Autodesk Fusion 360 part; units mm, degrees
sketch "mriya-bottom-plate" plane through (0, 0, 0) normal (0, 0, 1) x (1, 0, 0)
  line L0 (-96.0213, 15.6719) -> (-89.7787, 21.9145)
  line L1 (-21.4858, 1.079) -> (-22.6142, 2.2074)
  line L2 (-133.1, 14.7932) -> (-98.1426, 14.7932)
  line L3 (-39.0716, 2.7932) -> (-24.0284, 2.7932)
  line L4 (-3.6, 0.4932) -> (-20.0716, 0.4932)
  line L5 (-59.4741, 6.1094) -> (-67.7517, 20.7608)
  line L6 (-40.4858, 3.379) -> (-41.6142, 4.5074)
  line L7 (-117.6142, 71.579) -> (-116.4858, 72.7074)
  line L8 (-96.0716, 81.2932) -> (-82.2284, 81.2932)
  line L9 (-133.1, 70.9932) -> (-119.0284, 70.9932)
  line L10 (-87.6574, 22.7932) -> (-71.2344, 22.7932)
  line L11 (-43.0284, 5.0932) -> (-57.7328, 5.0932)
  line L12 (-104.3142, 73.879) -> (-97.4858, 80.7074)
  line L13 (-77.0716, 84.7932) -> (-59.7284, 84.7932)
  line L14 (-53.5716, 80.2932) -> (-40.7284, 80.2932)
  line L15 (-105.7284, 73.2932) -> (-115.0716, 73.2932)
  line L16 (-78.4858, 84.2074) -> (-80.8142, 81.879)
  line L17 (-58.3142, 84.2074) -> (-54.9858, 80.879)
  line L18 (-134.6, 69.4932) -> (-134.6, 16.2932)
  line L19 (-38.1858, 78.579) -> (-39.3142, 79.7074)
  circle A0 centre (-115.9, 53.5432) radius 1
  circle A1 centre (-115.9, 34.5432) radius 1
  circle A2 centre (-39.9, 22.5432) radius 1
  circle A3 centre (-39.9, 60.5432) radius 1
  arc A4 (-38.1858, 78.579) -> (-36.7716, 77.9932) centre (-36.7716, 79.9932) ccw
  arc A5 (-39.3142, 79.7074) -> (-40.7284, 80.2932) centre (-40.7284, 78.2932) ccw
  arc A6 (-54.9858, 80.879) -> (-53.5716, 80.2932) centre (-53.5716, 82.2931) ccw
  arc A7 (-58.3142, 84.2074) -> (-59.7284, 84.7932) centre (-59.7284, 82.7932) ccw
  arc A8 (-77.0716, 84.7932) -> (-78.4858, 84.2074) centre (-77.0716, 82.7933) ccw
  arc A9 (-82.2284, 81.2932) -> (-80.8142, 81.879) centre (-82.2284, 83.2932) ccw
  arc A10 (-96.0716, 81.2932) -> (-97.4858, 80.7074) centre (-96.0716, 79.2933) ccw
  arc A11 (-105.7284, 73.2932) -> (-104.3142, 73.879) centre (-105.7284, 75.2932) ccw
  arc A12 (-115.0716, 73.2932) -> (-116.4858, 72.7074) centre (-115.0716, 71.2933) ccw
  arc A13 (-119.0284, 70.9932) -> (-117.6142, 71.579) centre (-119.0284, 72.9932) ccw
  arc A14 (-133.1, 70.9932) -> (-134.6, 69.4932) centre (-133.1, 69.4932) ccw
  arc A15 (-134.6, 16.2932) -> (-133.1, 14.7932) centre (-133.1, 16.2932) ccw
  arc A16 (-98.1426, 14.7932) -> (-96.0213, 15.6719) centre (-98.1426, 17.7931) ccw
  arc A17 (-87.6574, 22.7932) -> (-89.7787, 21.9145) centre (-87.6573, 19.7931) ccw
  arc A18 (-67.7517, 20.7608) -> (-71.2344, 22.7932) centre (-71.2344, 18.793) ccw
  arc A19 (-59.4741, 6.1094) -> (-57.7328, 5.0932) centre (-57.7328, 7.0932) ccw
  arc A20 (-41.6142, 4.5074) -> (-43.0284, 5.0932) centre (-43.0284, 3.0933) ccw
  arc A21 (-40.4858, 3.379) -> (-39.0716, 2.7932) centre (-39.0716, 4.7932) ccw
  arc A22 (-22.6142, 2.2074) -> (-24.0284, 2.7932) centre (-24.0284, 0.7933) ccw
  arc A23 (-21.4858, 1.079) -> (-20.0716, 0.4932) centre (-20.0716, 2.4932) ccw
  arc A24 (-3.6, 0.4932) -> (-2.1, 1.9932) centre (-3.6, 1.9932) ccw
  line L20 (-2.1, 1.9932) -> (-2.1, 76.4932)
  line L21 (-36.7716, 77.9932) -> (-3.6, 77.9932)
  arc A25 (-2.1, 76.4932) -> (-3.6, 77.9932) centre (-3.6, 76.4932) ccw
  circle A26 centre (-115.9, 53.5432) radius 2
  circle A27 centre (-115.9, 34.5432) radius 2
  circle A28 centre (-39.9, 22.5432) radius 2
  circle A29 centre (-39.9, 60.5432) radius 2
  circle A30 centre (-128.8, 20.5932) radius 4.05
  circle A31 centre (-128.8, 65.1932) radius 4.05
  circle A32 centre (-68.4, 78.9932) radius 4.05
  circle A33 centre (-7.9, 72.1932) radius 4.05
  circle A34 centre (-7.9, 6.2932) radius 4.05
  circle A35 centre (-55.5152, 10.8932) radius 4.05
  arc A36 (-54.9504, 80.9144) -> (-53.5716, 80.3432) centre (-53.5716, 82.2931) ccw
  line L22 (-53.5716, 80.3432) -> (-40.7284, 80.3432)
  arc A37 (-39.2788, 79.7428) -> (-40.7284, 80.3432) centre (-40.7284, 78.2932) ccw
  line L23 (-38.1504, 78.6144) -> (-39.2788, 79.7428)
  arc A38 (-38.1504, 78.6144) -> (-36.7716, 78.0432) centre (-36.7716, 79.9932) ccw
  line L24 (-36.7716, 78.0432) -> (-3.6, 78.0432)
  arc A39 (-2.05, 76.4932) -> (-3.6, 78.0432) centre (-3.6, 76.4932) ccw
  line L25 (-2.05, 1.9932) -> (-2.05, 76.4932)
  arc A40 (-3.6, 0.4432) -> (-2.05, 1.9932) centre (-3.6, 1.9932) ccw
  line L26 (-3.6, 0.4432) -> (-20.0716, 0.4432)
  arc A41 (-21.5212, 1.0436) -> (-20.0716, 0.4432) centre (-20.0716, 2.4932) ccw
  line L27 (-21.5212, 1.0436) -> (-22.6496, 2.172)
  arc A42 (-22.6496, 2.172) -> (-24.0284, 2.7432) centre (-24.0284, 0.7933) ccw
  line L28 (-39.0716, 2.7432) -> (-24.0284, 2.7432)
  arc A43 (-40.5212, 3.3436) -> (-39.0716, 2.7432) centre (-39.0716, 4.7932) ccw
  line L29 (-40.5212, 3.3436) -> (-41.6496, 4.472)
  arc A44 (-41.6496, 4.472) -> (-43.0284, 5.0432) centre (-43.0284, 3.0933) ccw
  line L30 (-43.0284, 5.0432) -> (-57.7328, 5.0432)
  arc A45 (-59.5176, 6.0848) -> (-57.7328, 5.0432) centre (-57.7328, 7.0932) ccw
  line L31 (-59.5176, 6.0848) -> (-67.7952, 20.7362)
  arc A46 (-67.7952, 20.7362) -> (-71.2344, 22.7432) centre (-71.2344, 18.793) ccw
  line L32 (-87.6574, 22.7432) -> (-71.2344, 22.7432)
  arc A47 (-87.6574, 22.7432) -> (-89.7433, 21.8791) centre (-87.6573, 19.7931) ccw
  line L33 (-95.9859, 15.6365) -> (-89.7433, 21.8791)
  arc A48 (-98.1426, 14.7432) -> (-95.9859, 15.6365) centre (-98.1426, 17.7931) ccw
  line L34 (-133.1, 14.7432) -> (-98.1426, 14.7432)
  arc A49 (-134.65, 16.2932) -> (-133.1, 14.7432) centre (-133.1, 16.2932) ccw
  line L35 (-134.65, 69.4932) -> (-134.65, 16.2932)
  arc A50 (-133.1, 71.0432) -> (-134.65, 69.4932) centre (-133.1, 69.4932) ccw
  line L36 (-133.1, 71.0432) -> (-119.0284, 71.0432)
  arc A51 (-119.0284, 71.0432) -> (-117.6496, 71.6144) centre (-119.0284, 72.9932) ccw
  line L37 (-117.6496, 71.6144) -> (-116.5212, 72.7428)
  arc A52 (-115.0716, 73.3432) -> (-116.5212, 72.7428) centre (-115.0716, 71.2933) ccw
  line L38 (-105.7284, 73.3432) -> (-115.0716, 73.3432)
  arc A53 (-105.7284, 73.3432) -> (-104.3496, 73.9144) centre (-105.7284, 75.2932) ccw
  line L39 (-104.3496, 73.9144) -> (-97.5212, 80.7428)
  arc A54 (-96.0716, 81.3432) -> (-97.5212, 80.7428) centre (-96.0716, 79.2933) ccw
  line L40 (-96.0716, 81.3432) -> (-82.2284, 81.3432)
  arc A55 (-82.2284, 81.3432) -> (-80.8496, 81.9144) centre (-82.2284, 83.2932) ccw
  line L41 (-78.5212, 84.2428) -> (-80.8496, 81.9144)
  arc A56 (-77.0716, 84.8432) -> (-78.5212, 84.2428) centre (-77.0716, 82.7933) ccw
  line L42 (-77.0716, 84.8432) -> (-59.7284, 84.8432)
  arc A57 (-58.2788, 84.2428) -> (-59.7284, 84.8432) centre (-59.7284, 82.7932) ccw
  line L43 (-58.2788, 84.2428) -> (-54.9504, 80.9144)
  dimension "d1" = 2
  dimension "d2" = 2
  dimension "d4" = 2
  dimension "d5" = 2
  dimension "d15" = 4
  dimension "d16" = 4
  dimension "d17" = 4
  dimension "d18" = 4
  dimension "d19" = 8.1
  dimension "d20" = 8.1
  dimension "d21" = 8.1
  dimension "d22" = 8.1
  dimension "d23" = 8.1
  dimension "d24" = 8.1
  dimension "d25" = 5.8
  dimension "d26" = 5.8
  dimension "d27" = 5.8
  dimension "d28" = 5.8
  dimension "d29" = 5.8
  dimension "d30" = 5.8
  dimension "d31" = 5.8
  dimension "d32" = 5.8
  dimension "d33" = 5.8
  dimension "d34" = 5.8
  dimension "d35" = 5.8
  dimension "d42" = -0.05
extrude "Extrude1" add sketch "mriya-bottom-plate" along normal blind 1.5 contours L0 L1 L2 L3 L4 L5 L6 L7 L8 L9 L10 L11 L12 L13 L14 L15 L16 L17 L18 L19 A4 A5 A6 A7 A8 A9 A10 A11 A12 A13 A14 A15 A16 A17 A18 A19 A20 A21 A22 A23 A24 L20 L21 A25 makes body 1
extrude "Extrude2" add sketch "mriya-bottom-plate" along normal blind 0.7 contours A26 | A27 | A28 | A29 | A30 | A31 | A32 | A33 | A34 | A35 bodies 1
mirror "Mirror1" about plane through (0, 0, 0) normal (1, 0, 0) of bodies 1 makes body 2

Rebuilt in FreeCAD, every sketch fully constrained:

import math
import FreeCAD as App
import Part
import Sketcher
Q = App.Units.Quantity

doc = App.newDocument("Part")
body = doc.addObject("PartDesign::Body", "Body")
body.AllowCompound = True

# Sketch on XY plane
sketch1 = doc.addObject("Sketcher::SketchObject", "Sketch")
body.addObject(sketch1)
sketch1.AttachmentSupport = (doc.XY_Plane, [""])
sketch1.MapMode = "FlatFace"
sketch1.addGeometry(Part.ArcOfCircle(Part.Circle(App.Vector(-98.1, 17.8, 0), App.Vector(0, 0, 1), 3), math.radians(-90), math.radians(-45)), False)
sketch1.addGeometry(Part.LineSegment(App.Vector(-96, 15.7, 0), App.Vector(-89.8, 21.9, 0)), False)
sketch1.addGeometry(Part.ArcOfCircle(Part.Circle(App.Vector(-87.7, 19.8, 0), App.Vector(0, 0, 1), 3), math.radians(90), math.radians(135)), False)
sketch1.addGeometry(Part.LineSegment(App.Vector(-87.7, 22.8, 0), App.Vector(-71.2, 22.8, 0)), False)
sketch1.addGeometry(Part.ArcOfCircle(Part.Circle(App.Vector(-71.2, 18.8, 0), App.Vector(0, 0, 1), 4), math.radians(29), math.radians(90)), False)
sketch1.addGeometry(Part.LineSegment(App.Vector(-67.8, 20.8, 0), App.Vector(-59.5, 6.1, 0)), False)
sketch1.addGeometry(Part.ArcOfCircle(Part.Circle(App.Vector(-57.7, 7.1, 0), App.Vector(0, 0, 1), 2), math.radians(-151), math.radians(-90)), False)
sketch1.addGeometry(Part.LineSegment(App.Vector(-57.7, 5.1, 0), App.Vector(-43, 5.1, 0)), False)
sketch1.addGeometry(Part.ArcOfCircle(Part.Circle(App.Vector(-43, 3.1, 0), App.Vector(0, 0, 1), 2), math.radians(45), math.radians(90)), False)
sketch1.addGeometry(Part.LineSegment(App.Vector(-41.6, 4.5, 0), App.Vector(-40.5, 3.4, 0)), False)
sketch1.addGeometry(Part.ArcOfCircle(Part.Circle(App.Vector(-39.1, 4.8, 0), App.Vector(0, 0, 1), 2), math.radians(-135), math.radians(-90)), False)
sketch1.addGeometry(Part.LineSegment(App.Vector(-39.1, 2.8, 0), App.Vector(-24, 2.8, 0)), False)
sketch1.addGeometry(Part.ArcOfCircle(Part.Circle(App.Vector(-24, 0.8, 0), App.Vector(0, 0, 1), 2), math.radians(45), math.radians(90)), False)
sketch1.addGeometry(Part.LineSegment(App.Vector(-22.6, 2.2, 0), App.Vector(-21.5, 1.1, 0)), False)
sketch1.addGeometry(Part.ArcOfCircle(Part.Circle(App.Vector(-20.1, 2.5, 0), App.Vector(0, 0, 1), 2), math.radians(-135), math.radians(-90)), False)
sketch1.addGeometry(Part.LineSegment(App.Vector(-20.1, 0.5, 0), App.Vector(-3.6, 0.5, 0)), False)
sketch1.addGeometry(Part.ArcOfCircle(Part.Circle(App.Vector(-3.6, 2, 0), App.Vector(0, 0, 1), 1.5), math.radians(-90), math.radians(0)), False)
sketch1.addGeometry(Part.LineSegment(App.Vector(-2.1, 2, 0), App.Vector(-2.1, 76.5, 0)), False)
sketch1.addGeometry(Part.ArcOfCircle(Part.Circle(App.Vector(-3.6, 76.5, 0), App.Vector(0, 0, 1), 1.5), math.radians(0), math.radians(90)), False)
sketch1.addGeometry(Part.LineSegment(App.Vector(-3.6, 78, 0), App.Vector(-36.8, 78, 0)), False)
sketch1.addGeometry(Part.ArcOfCircle(Part.Circle(App.Vector(-36.8, 80, 0), App.Vector(0, 0, 1), 2), math.radians(-135), math.radians(-90)), False)
sketch1.addGeometry(Part.LineSegment(App.Vector(-38.2, 78.6, 0), App.Vector(-39.3, 79.7, 0)), False)
sketch1.addGeometry(Part.ArcOfCircle(Part.Circle(App.Vector(-40.7, 78.3, 0), App.Vector(0, 0, 1), 2), math.radians(45), math.radians(90)), False)
sketch1.addGeometry(Part.LineSegment(App.Vector(-40.7, 80.3, 0), App.Vector(-53.6, 80.3, 0)), False)
sketch1.addGeometry(Part.ArcOfCircle(Part.Circle(App.Vector(-53.6, 82.3, 0), App.Vector(0, 0, 1), 2), math.radians(-135), math.radians(-90)), False)
sketch1.addGeometry(Part.LineSegment(App.Vector(-55, 80.9, 0), App.Vector(-58.3, 84.2, 0)), False)
sketch1.addGeometry(Part.ArcOfCircle(Part.Circle(App.Vector(-59.7, 82.8, 0), App.Vector(0, 0, 1), 2), math.radians(45), math.radians(90)), False)
sketch1.addGeometry(Part.LineSegment(App.Vector(-59.7, 84.8, 0), App.Vector(-77.1, 84.8, 0)), False)
sketch1.addGeometry(Part.ArcOfCircle(Part.Circle(App.Vector(-77.1, 82.8, 0), App.Vector(0, 0, 1), 2), math.radians(90), math.radians(135)), False)
sketch1.addGeometry(Part.LineSegment(App.Vector(-78.5, 84.2, 0), App.Vector(-80.8, 81.9, 0)), False)
sketch1.addGeometry(Part.ArcOfCircle(Part.Circle(App.Vector(-82.2, 83.3, 0), App.Vector(0, 0, 1), 2), math.radians(-90), math.radians(-45)), False)
sketch1.addGeometry(Part.LineSegment(App.Vector(-82.2, 81.3, 0), App.Vector(-96.1, 81.3, 0)), False)
sketch1.addGeometry(Part.ArcOfCircle(Part.Circle(App.Vector(-96.1, 79.3, 0), App.Vector(0, 0, 1), 2), math.radians(90), math.radians(135)), False)
sketch1.addGeometry(Part.LineSegment(App.Vector(-97.5, 80.7, 0), App.Vector(-104.3, 73.9, 0)), False)
sketch1.addGeometry(Part.ArcOfCircle(Part.Circle(App.Vector(-105.7, 75.3, 0), App.Vector(0, 0, 1), 2), math.radians(-90), math.radians(-45)), False)
sketch1.addGeometry(Part.LineSegment(App.Vector(-105.7, 73.3, 0), App.Vector(-115.1, 73.3, 0)), False)
sketch1.addGeometry(Part.ArcOfCircle(Part.Circle(App.Vector(-115.1, 71.3, 0), App.Vector(0, 0, 1), 2), math.radians(90), math.radians(135)), False)
sketch1.addGeometry(Part.LineSegment(App.Vector(-116.5, 72.7, 0), App.Vector(-117.6, 71.6, 0)), False)
sketch1.addGeometry(Part.ArcOfCircle(Part.Circle(App.Vector(-119, 73, 0), App.Vector(0, 0, 1), 2), math.radians(-90), math.radians(-45)), False)
sketch1.addGeometry(Part.LineSegment(App.Vector(-119, 71, 0), App.Vector(-133.1, 71, 0)), False)
sketch1.addGeometry(Part.ArcOfCircle(Part.Circle(App.Vector(-133.1, 69.5, 0), App.Vector(0, 0, 1), 1.5), math.radians(90), math.radians(180)), False)
sketch1.addGeometry(Part.LineSegment(App.Vector(-134.6, 69.5, 0), App.Vector(-134.6, 16.3, 0)), False)
sketch1.addGeometry(Part.ArcOfCircle(Part.Circle(App.Vector(-133.1, 16.3, 0), App.Vector(0, 0, 1), 1.5), math.radians(180), math.radians(270)), False)
sketch1.addGeometry(Part.LineSegment(App.Vector(-133.1, 14.8, 0), App.Vector(-98.1, 14.8, 0)), False)
sketch1.addGeometry(Part.Circle(App.Vector(-128.8, 20.6, 0), App.Vector(0, 0, 1), 4), False)
sketch1.addGeometry(Part.Circle(App.Vector(-115.9, 34.5, 0), App.Vector(0, 0, 1), 2), False)
sketch1.addGeometry(Part.Circle(App.Vector(-55.5, 10.9, 0), App.Vector(0, 0, 1), 4), False)
sketch1.addGeometry(Part.Circle(App.Vector(-7.9, 6.3, 0), App.Vector(0, 0, 1), 4), False)
sketch1.addGeometry(Part.Circle(App.Vector(-39.9, 22.5, 0), App.Vector(0, 0, 1), 2), False)
sketch1.addGeometry(Part.Circle(App.Vector(-115.9, 53.5, 0), App.Vector(0, 0, 1), 2), False)
sketch1.addGeometry(Part.Circle(App.Vector(-128.8, 65.2, 0), App.Vector(0, 0, 1), 4), False)
sketch1.addGeometry(Part.Circle(App.Vector(-68.4, 79, 0), App.Vector(0, 0, 1), 4), False)
sketch1.addGeometry(Part.Circle(App.Vector(-39.9, 60.5, 0), App.Vector(0, 0, 1), 2), False)
sketch1.addGeometry(Part.Circle(App.Vector(-7.9, 72.2, 0), App.Vector(0, 0, 1), 4), False)
sketch1.addConstraint(Sketcher.Constraint("Tangent", 0, 2, 1, 1))
sketch1.addConstraint(Sketcher.Constraint("Tangent", 1, 2, 2, 2))
sketch1.addConstraint(Sketcher.Constraint("Tangent", 2, 1, 3, 1))
sketch1.addConstraint(Sketcher.Constraint("Tangent", 3, 2, 4, 2))
sketch1.addConstraint(Sketcher.Constraint("Tangent", 4, 1, 5, 1))
sketch1.addConstraint(Sketcher.Constraint("Tangent", 5, 2, 6, 1))
sketch1.addConstraint(Sketcher.Constraint("Tangent", 6, 2, 7, 1))
sketch1.addConstraint(Sketcher.Constraint("Tangent", 7, 2, 8, 2))
sketch1.addConstraint(Sketcher.Constraint("Tangent", 8, 1, 9, 1))
sketch1.addConstraint(Sketcher.Constraint("Tangent", 9, 2, 10, 1))
sketch1.addConstraint(Sketcher.Constraint("Tangent", 10, 2, 11, 1))
sketch1.addConstraint(Sketcher.Constraint("Tangent", 11, 2, 12, 2))
sketch1.addConstraint(Sketcher.Constraint("Tangent", 12, 1, 13, 1))
sketch1.addConstraint(Sketcher.Constraint("Tangent", 13, 2, 14, 1))
sketch1.addConstraint(Sketcher.Constraint("Tangent", 14, 2, 15, 1))
sketch1.addConstraint(Sketcher.Constraint("Tangent", 15, 2, 16, 1))
sketch1.addConstraint(Sketcher.Constraint("Tangent", 16, 2, 17, 1))
sketch1.addConstraint(Sketcher.Constraint("Tangent", 17, 2, 18, 1))
sketch1.addConstraint(Sketcher.Constraint("Tangent", 18, 2, 19, 1))
sketch1.addConstraint(Sketcher.Constraint("Tangent", 19, 2, 20, 2))
sketch1.addConstraint(Sketcher.Constraint("Tangent", 20, 1, 21, 1))
sketch1.addConstraint(Sketcher.Constraint("Tangent", 21, 2, 22, 1))
sketch1.addConstraint(Sketcher.Constraint("Tangent", 22, 2, 23, 1))
sketch1.addConstraint(Sketcher.Constraint("Tangent", 23, 2, 24, 2))
sketch1.addConstraint(Sketcher.Constraint("Tangent", 24, 1, 25, 1))
sketch1.addConstraint(Sketcher.Constraint("Tangent", 25, 2, 26, 1))
sketch1.addConstraint(Sketcher.Constraint("Tangent", 26, 2, 27, 1))
sketch1.addConstraint(Sketcher.Constraint("Tangent", 27, 2, 28, 1))
sketch1.addConstraint(Sketcher.Constraint("Tangent", 28, 2, 29, 1))
sketch1.addConstraint(Sketcher.Constraint("Tangent", 29, 2, 30, 2))
sketch1.addConstraint(Sketcher.Constraint("Tangent", 30, 1, 31, 1))
sketch1.addConstraint(Sketcher.Constraint("Tangent", 31, 2, 32, 1))
sketch1.addConstraint(Sketcher.Constraint("Tangent", 32, 2, 33, 1))
sketch1.addConstraint(Sketcher.Constraint("Tangent", 33, 2, 34, 2))
sketch1.addConstraint(Sketcher.Constraint("Tangent", 34, 1, 35, 1))
sketch1.addConstraint(Sketcher.Constraint("Tangent", 35, 2, 36, 1))
sketch1.addConstraint(Sketcher.Constraint("Tangent", 36, 2, 37, 1))
sketch1.addConstraint(Sketcher.Constraint("Tangent", 37, 2, 38, 2))
sketch1.addConstraint(Sketcher.Constraint("Tangent", 38, 1, 39, 1))
sketch1.addConstraint(Sketcher.Constraint("Tangent", 39, 2, 40, 1))
sketch1.addConstraint(Sketcher.Constraint("Tangent", 40, 2, 41, 1))
sketch1.addConstraint(Sketcher.Constraint("Tangent", 41, 2, 42, 1))
sketch1.addConstraint(Sketcher.Constraint("Tangent", 42, 2, 43, 1))
sketch1.addConstraint(Sketcher.Constraint("Tangent", 43, 2, 0, 1))
sketch1.addConstraint(Sketcher.Constraint("Horizontal", 3))
sketch1.addConstraint(Sketcher.Constraint("Horizontal", 7))
sketch1.addConstraint(Sketcher.Constraint("Horizontal", 11))
sketch1.addConstraint(Sketcher.Constraint("Horizontal", 15))
sketch1.addConstraint(Sketcher.Constraint("Vertical", 17))
sketch1.addConstraint(Sketcher.Constraint("Horizontal", 19))
sketch1.addConstraint(Sketcher.Constraint("Horizontal", 23))
sketch1.addConstraint(Sketcher.Constraint("Horizontal", 27))
sketch1.addConstraint(Sketcher.Constraint("Horizontal", 31))
sketch1.addConstraint(Sketcher.Constraint("Horizontal", 35))
sketch1.addConstraint(Sketcher.Constraint("Horizontal", 39))
sketch1.addConstraint(Sketcher.Constraint("Vertical", 41))
sketch1.addConstraint(Sketcher.Constraint("Horizontal", 43))
sketch1.addConstraint(Sketcher.Constraint("Equal", 6, 8))
sketch1.addConstraint(Sketcher.Constraint("Equal", 8, 10))
sketch1.addConstraint(Sketcher.Constraint("Equal", 10, 12))
sketch1.addConstraint(Sketcher.Constraint("Equal", 12, 14))
sketch1.addConstraint(Sketcher.Constraint("Equal", 16, 18))
sketch1.addConstraint(Sketcher.Constraint("Equal", 14, 20))
sketch1.addConstraint(Sketcher.Constraint("Equal", 20, 22))
sketch1.addConstraint(Sketcher.Constraint("Equal", 22, 24))
sketch1.addConstraint(Sketcher.Constraint("Equal", 24, 26))
sketch1.addConstraint(Sketcher.Constraint("Equal", 26, 28))
sketch1.addConstraint(Sketcher.Constraint("Equal", 28, 30))
sketch1.addConstraint(Sketcher.Constraint("Equal", 30, 32))
sketch1.addConstraint(Sketcher.Constraint("Equal", 32, 34))
sketch1.addConstraint(Sketcher.Constraint("Equal", 34, 36))
sketch1.addConstraint(Sketcher.Constraint("Equal", 36, 38))
sketch1.addConstraint(Sketcher.Constraint("Equal", 18, 40))
sketch1.addConstraint(Sketcher.Constraint("Equal", 40, 42))
sketch1.addConstraint(Sketcher.Constraint("Equal", 38, 45))
sketch1.addConstraint(Sketcher.Constraint("Equal", 44, 46))
sketch1.addConstraint(Sketcher.Constraint("Equal", 46, 47))
sketch1.addConstraint(Sketcher.Constraint("Equal", 45, 48))
sketch1.addConstraint(Sketcher.Constraint("Equal", 48, 49))
sketch1.addConstraint(Sketcher.Constraint("Equal", 47, 50))
sketch1.addConstraint(Sketcher.Constraint("Equal", 50, 51))
sketch1.addConstraint(Sketcher.Constraint("Equal", 49, 52))
sketch1.addConstraint(Sketcher.Constraint("Equal", 51, 53))
sketch1.addConstraint(Sketcher.Constraint("Perpendicular", 1, 9))
sketch1.addConstraint(Sketcher.Constraint("Parallel", 9, 13))
sketch1.addConstraint(Sketcher.Constraint("Parallel", 13, 21))
sketch1.addConstraint(Sketcher.Constraint("Parallel", 21, 25))
sketch1.addConstraint(Sketcher.Constraint("Perpendicular", 25, 29))
sketch1.addConstraint(Sketcher.Constraint("Parallel", 29, 33))
sketch1.addConstraint(Sketcher.Constraint("Parallel", 33, 37))
sketch1.addConstraint(Sketcher.Constraint("Horizontal", 25, 2, 28, 2))
sketch1.addConstraint(Sketcher.Constraint("Vertical", 45, 3, 49, 3))
sketch1.addConstraint(Sketcher.Constraint("Vertical", 44, 3, 50, 3))
sketch1.addConstraint(Sketcher.Constraint("Vertical", 48, 3, 52, 3))
sketch1.addConstraint(Sketcher.Constraint("Vertical", 47, 3, 53, 3))
sketch1.addConstraint(Sketcher.Constraint("Equal", 9, 13))
sketch1.addConstraint(Sketcher.Constraint("Equal", 13, 21))
sketch1.addConstraint(Sketcher.Constraint("Equal", 21, 37))
sketch1.addConstraint(Sketcher.Constraint("Diameter", 45, Q("4 mm")))
sketch1.addConstraint(Sketcher.Constraint("Diameter", 44, Q("8.1 mm")))
sketch1.addConstraint(Sketcher.Constraint("Radius", 0, Q("3 mm")))
sketch1.addConstraint(Sketcher.Constraint("Radius", 2, Q("3 mm")))
sketch1.addConstraint(Sketcher.Constraint("Radius", 4, Q("4.0002 mm")))
sketch1.addConstraint(Sketcher.Constraint("Radius", 16, Q("1.5 mm")))
sketch1.addConstraint(Sketcher.Constraint("DistanceY", 17, 1, 17, 2, Q("74.5 mm")))
sketch1.addConstraint(Sketcher.Constraint("DistanceY", 41, 2, 41, 1, Q("53.2 mm")))
sketch1.addConstraint(Sketcher.Constraint("DistanceX", 16, 3, -1, 1, Q("3.6 mm")))
sketch1.addConstraint(Sketcher.Constraint("DistanceX", 40, 3, -1, 1, Q("133.1 mm")))
sketch1.addConstraint(Sketcher.Constraint("DistanceX", 44, 3, -1, 1, Q("128.8 mm")))
sketch1.addConstraint(Sketcher.Constraint("DistanceX", 45, 3, -1, 1, Q("115.9 mm")))
sketch1.addConstraint(Sketcher.Constraint("DistanceX", 47, 3, -1, 1, Q("7.9 mm")))
sketch1.addConstraint(Sketcher.Constraint("DistanceX", 48, 3, -1, 1, Q("39.9 mm")))
sketch1.addConstraint(Sketcher.Constraint("DistanceX", 51, 3, -1, 1, Q("68.4 mm")))
sketch1.addConstraint(Sketcher.Constraint("DistanceX", 3, 1, 3, 2, Q("16.423 mm")))
sketch1.addConstraint(Sketcher.Constraint("Distance", 5, Q("16.828 mm")))
sketch1.addConstraint(Sketcher.Constraint("Distance", 25, Q("4.707 mm")))
sketch1.addConstraint(Sketcher.Constraint("DistanceX", 7, 1, 7, 2, Q("14.7044 mm")))
sketch1.addConstraint(Sketcher.Constraint("DistanceX", 11, 1, 11, 2, Q("15.0432 mm")))
sketch1.addConstraint(Sketcher.Constraint("DistanceX", 15, 1, 15, 2, Q("16.4716 mm")))
sketch1.addConstraint(Sketcher.Constraint("DistanceX", 19, 2, 19, 1, Q("33.1716 mm")))
sketch1.addConstraint(Sketcher.Constraint("DistanceX", 23, 2, 23, 1, Q("12.8432 mm")))
sketch1.addConstraint(Sketcher.Constraint("DistanceX", 27, 2, 27, 1, Q("17.3432 mm")))
sketch1.addConstraint(Sketcher.Constraint("DistanceX", 31, 2, 31, 1, Q("13.8432 mm")))
sketch1.addConstraint(Sketcher.Constraint("DistanceX", 35, 2, 35, 1, Q("9.3432 mm")))
sketch1.addConstraint(Sketcher.Constraint("DistanceX", 39, 2, 39, 1, Q("14.0716 mm")))
sketch1.addConstraint(Sketcher.Constraint("DistanceX", 43, 1, 43, 2, Q("34.9574 mm")))
sketch1.addConstraint(Sketcher.Constraint("DistanceY", -1, 1, 0, 3, Q("17.793 mm")))
sketch1.addConstraint(Sketcher.Constraint("DistanceY", -1, 1, 2, 3, Q("19.793 mm")))
sketch1.addConstraint(Sketcher.Constraint("DistanceY", -1, 1, 29, 2, Q("81.879 mm")))
sketch1.addConstraint(Sketcher.Constraint("DistanceY", -1, 1, 44, 3, Q("20.5932 mm")))
sketch1.addConstraint(Sketcher.Constraint("DistanceY", -1, 1, 45, 3, Q("34.5432 mm")))
sketch1.addConstraint(Sketcher.Constraint("DistanceX", 46, 3, -1, 1, Q("55.5152 mm")))
sketch1.addConstraint(Sketcher.Constraint("DistanceY", -1, 1, 46, 3, Q("10.8932 mm")))
sketch1.addConstraint(Sketcher.Constraint("DistanceY", -1, 1, 47, 3, Q("6.2932 mm")))
sketch1.addConstraint(Sketcher.Constraint("DistanceY", -1, 1, 48, 3, Q("22.5432 mm")))
sketch1.addConstraint(Sketcher.Constraint("DistanceY", -1, 1, 49, 3, Q("53.5432 mm")))
sketch1.addConstraint(Sketcher.Constraint("DistanceY", -1, 1, 50, 3, Q("65.1932 mm")))
sketch1.addConstraint(Sketcher.Constraint("DistanceY", -1, 1, 51, 3, Q("78.9932 mm")))
sketch1.addConstraint(Sketcher.Constraint("DistanceY", -1, 1, 52, 3, Q("60.5432 mm")))
sketch1.addConstraint(Sketcher.Constraint("DistanceY", -1, 1, 53, 3, Q("72.1932 mm")))
pad1 = doc.addObject("PartDesign::Pad", "Pad")
body.addObject(pad1)
pad1.Profile = sketch1
pad1.Length = 1.5

# Sketch on XY plane
sketch2 = doc.addObject("Sketcher::SketchObject", "Sketch001")
body.addObject(sketch2)
sketch2.AttachmentSupport = (doc.XY_Plane, [""])
sketch2.MapMode = "FlatFace"
sketch2.addGeometry(Part.Circle(App.Vector(-115.9, 53.5, 0), App.Vector(0, 0, 1), 2), False)
sketch2.addGeometry(Part.Circle(App.Vector(-115.9, 53.5, 0), App.Vector(0, 0, 1), 1), False)
sketch2.addGeometry(Part.Circle(App.Vector(-115.9, 34.5, 0), App.Vector(0, 0, 1), 2), False)
sketch2.addGeometry(Part.Circle(App.Vector(-115.9, 34.5, 0), App.Vector(0, 0, 1), 1), False)
sketch2.addGeometry(Part.Circle(App.Vector(-39.9, 22.5, 0), App.Vector(0, 0, 1), 2), False)
sketch2.addGeometry(Part.Circle(App.Vector(-39.9, 22.5, 0), App.Vector(0, 0, 1), 1), False)
sketch2.addGeometry(Part.Circle(App.Vector(-39.9, 60.5, 0), App.Vector(0, 0, 1), 2), False)
sketch2.addGeometry(Part.Circle(App.Vector(-39.9, 60.5, 0), App.Vector(0, 0, 1), 1), False)
sketch2.addGeometry(Part.Circle(App.Vector(-128.8, 20.6, 0), App.Vector(0, 0, 1), 4), False)
sketch2.addGeometry(Part.Circle(App.Vector(-128.8, 65.2, 0), App.Vector(0, 0, 1), 4), False)
sketch2.addGeometry(Part.Circle(App.Vector(-68.4, 79, 0), App.Vector(0, 0, 1), 4), False)
sketch2.addGeometry(Part.Circle(App.Vector(-7.9, 72.2, 0), App.Vector(0, 0, 1), 4), False)
sketch2.addGeometry(Part.Circle(App.Vector(-7.9, 6.3, 0), App.Vector(0, 0, 1), 4), False)
sketch2.addGeometry(Part.Circle(App.Vector(-55.5, 10.9, 0), App.Vector(0, 0, 1), 4), False)
sketch2.addConstraint(Sketcher.Constraint("Coincident", 1, 3, 0, 3))
sketch2.addConstraint(Sketcher.Constraint("Coincident", 3, 3, 2, 3))
sketch2.addConstraint(Sketcher.Constraint("Coincident", 5, 3, 4, 3))
sketch2.addConstraint(Sketcher.Constraint("Coincident", 7, 3, 6, 3))
sketch2.addConstraint(Sketcher.Constraint("Equal", 0, 2))
sketch2.addConstraint(Sketcher.Constraint("Equal", 1, 3))
sketch2.addConstraint(Sketcher.Constraint("Equal", 2, 4))
sketch2.addConstraint(Sketcher.Constraint("Equal", 3, 5))
sketch2.addConstraint(Sketcher.Constraint("Equal", 4, 6))
sketch2.addConstraint(Sketcher.Constraint("Equal", 5, 7))
sketch2.addConstraint(Sketcher.Constraint("Equal", 8, 9))
sketch2.addConstraint(Sketcher.Constraint("Equal", 9, 10))
sketch2.addConstraint(Sketcher.Constraint("Equal", 10, 11))
sketch2.addConstraint(Sketcher.Constraint("Equal", 11, 12))
sketch2.addConstraint(Sketcher.Constraint("Equal", 12, 13))
sketch2.addConstraint(Sketcher.Constraint("Vertical", 1, 3, 2, 3))
sketch2.addConstraint(Sketcher.Constraint("Vertical", 5, 3, 6, 3))
sketch2.addConstraint(Sketcher.Constraint("Vertical", 8, 3, 9, 3))
sketch2.addConstraint(Sketcher.Constraint("Vertical", 11, 3, 12, 3))
sketch2.addConstraint(Sketcher.Constraint("Diameter", 0, Q("4 mm")))
sketch2.addConstraint(Sketcher.Constraint("Diameter", 1, Q("2 mm")))
sketch2.addConstraint(Sketcher.Constraint("Diameter", 8, Q("8.1 mm")))
sketch2.addConstraint(Sketcher.Constraint("DistanceY", 2, 3, 0, 3, Q("19 mm")))
sketch2.addConstraint(Sketcher.Constraint("DistanceX", 2, 3, 4, 3, Q("76 mm")))
sketch2.addConstraint(Sketcher.Constraint("DistanceY", 4, 3, 2, 3, Q("12 mm")))
sketch2.addConstraint(Sketcher.Constraint("DistanceY", 4, 3, 6, 3, Q("38 mm")))
sketch2.addConstraint(Sketcher.Constraint("DistanceX", 6, 3, 11, 3, Q("32 mm")))
sketch2.addConstraint(Sketcher.Constraint("DistanceX", 0, 3, -1, 1, Q("115.9 mm")))
sketch2.addConstraint(Sketcher.Constraint("DistanceX", 8, 3, -1, 1, Q("128.8 mm")))
sketch2.addConstraint(Sketcher.Constraint("DistanceX", 10, 3, -1, 1, Q("68.4 mm")))
sketch2.addConstraint(Sketcher.Constraint("DistanceY", 8, 3, 9, 3, Q("44.6 mm")))
sketch2.addConstraint(Sketcher.Constraint("DistanceY", 9, 3, 10, 3, Q("13.8 mm")))
sketch2.addConstraint(Sketcher.Constraint("DistanceY", 11, 3, 10, 3, Q("6.8 mm")))
sketch2.addConstraint(Sketcher.Constraint("DistanceY", 12, 3, 11, 3, Q("65.9 mm")))
sketch2.addConstraint(Sketcher.Constraint("DistanceY", 12, 3, 13, 3, Q("4.6 mm")))
sketch2.addConstraint(Sketcher.Constraint("DistanceY", 8, 3, 2, 3, Q("13.95 mm")))
sketch2.addConstraint(Sketcher.Constraint("DistanceY", -1, 1, 0, 3, Q("53.5432 mm")))
sketch2.addConstraint(Sketcher.Constraint("DistanceX", 13, 3, -1, 1, Q("55.5152 mm")))
pad2 = doc.addObject("PartDesign::Pad", "Pad001")
body.addObject(pad2)
pad2.Profile = sketch2
pad2.Length = 0.7
doc.recompute()

mirrored = doc.addObject("PartDesign::Mirrored", "Mirrored")
body.addObject(mirrored)
mirrored.TransformMode = "Transform body"
mirrored.MirrorPlane = (doc.YZ_Plane, [""])
body.Tip = mirrored

doc.recompute()
